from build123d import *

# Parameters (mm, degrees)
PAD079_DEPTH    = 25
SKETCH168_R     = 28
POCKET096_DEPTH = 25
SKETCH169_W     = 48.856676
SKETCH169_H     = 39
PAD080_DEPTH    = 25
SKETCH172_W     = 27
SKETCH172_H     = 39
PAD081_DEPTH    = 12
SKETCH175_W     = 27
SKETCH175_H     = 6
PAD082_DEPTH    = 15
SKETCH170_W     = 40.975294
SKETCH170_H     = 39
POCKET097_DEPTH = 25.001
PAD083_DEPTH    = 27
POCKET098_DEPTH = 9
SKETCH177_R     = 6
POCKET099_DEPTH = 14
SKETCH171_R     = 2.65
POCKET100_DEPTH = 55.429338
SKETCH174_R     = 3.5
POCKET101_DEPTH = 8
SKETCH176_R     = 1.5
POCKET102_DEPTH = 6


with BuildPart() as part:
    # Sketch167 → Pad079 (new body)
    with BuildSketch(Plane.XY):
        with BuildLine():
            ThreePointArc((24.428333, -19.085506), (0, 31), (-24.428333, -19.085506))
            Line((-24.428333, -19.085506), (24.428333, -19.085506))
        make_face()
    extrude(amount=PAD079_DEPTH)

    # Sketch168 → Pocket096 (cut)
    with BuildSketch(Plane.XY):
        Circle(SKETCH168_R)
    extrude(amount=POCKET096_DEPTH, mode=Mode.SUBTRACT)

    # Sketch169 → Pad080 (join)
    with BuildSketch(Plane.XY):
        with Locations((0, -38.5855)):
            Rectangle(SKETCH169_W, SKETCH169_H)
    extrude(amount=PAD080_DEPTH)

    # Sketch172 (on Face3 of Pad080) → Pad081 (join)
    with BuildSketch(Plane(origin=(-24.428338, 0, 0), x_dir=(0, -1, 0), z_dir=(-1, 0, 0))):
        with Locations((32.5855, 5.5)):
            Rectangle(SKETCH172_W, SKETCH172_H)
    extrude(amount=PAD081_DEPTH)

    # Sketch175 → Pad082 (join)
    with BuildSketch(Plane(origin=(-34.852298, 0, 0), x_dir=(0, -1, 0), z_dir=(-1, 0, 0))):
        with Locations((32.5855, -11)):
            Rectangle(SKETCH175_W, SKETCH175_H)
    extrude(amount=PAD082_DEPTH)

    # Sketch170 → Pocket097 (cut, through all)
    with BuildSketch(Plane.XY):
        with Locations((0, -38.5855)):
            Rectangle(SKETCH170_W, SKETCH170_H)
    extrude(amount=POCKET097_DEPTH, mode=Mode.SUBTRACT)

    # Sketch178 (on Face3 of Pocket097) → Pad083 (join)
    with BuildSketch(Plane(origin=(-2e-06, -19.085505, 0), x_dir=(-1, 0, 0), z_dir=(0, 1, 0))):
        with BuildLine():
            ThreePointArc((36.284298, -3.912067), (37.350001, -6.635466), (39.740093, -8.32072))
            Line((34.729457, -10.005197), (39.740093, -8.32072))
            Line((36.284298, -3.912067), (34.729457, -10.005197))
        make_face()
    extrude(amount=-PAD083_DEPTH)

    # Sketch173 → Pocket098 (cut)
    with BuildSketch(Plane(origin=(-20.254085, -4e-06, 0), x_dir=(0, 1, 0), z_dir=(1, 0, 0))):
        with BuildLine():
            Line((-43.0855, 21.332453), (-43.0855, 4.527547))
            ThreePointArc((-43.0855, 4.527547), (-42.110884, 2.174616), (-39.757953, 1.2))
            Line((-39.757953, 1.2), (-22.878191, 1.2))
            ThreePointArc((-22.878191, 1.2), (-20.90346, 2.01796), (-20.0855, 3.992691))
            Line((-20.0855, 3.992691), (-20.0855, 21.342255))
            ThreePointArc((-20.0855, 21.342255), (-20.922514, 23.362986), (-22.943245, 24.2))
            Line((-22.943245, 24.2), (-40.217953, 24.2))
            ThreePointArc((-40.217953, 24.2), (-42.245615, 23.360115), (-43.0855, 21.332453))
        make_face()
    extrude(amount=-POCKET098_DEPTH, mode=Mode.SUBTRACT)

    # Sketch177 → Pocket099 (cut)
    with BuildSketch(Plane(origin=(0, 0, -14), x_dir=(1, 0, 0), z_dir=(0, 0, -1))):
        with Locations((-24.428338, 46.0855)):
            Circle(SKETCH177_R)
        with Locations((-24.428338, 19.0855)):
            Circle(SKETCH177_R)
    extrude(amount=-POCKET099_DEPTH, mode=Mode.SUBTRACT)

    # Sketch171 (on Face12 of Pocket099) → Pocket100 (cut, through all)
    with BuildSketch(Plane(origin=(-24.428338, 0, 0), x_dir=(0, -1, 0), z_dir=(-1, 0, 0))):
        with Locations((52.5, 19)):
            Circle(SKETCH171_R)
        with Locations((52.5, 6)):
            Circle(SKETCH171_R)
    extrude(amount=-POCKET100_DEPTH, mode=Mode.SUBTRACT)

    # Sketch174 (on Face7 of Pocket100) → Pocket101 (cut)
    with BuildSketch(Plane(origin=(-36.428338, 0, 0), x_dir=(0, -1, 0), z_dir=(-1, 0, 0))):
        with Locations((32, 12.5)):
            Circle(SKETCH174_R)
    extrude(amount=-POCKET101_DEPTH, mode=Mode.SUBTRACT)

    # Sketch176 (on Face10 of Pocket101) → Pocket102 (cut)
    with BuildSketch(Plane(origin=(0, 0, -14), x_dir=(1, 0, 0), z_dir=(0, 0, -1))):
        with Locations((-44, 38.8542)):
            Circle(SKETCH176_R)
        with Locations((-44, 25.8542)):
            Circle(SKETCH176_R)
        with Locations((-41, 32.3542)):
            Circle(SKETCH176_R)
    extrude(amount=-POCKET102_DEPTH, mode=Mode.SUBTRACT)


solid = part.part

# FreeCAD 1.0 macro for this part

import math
import FreeCAD as App
import Part
import Sketcher
from FreeCAD import Vector
Q = App.Units.Quantity

doc = App.newDocument("Part")
body = doc.addObject("PartDesign::Body", "Body")

# Sketch on XY plane
sketch1 = doc.addObject("Sketcher::SketchObject", "Sketch")
body.addObject(sketch1)
sketch1.AttachmentSupport = (doc.XY_Plane, [""])
sketch1.MapMode = "FlatFace"
sketch1.addGeometry(Part.ArcOfCircle(Part.Circle(Vector(0, 0, 0), Vector(0, 0, 1), 31), math.radians(-38.000001), math.radians(218.000001)), False)
sketch1.addGeometry(Part.LineSegment(Vector(-24.428333, -19.085506, 0), Vector(24.428333, -19.085506, 0)), False)
sketch1.addConstraint(Sketcher.Constraint("Coincident", 0, 1, 1, 2))
sketch1.addConstraint(Sketcher.Constraint("Coincident", 1, 1, 0, 2))
sketch1.addConstraint(Sketcher.Constraint("Horizontal", 1))
sketch1.addConstraint(Sketcher.Constraint("Coincident", 0, 3, -1, 1))
sketch1.addConstraint(Sketcher.Constraint("Radius", 0, Q("31 mm")))
sketch1.addConstraint(Sketcher.Constraint("DistanceX", 1, 1, 1, 2, Q("48.856666 mm")))
pad1 = doc.addObject("PartDesign::Pad", "Pad")
body.addObject(pad1)
pad1.Profile = sketch1
pad1.Length = 25

# Sketch on XY plane
sketch2 = doc.addObject("Sketcher::SketchObject", "Sketch001")
body.addObject(sketch2)
sketch2.AttachmentSupport = (doc.XY_Plane, [""])
sketch2.MapMode = "FlatFace"
sketch2.addGeometry(Part.Circle(Vector(0, 0, 0), Vector(0, 0, 1), 28), False)
sketch2.addConstraint(Sketcher.Constraint("Coincident", 0, 3, -1, 1))
sketch2.addConstraint(Sketcher.Constraint("Diameter", 0, Q("56 mm")))
pocket1 = doc.addObject("PartDesign::Pocket", "Pocket")
body.addObject(pocket1)
pocket1.Profile = sketch2
pocket1.Length = 25
pocket1.Reversed = True

# Sketch on XY plane
sketch3 = doc.addObject("Sketcher::SketchObject", "Sketch002")
body.addObject(sketch3)
sketch3.AttachmentSupport = (doc.XY_Plane, [""])
sketch3.MapMode = "FlatFace"
sketch3.addGeometry(Part.LineSegment(Vector(-24.428338, -19.0855, 0), Vector(-24.428338, -58.0855, 0)), False)
sketch3.addGeometry(Part.LineSegment(Vector(-24.428338, -58.0855, 0), Vector(24.428338, -58.0855, 0)), False)
sketch3.addGeometry(Part.LineSegment(Vector(24.428338, -58.0855, 0), Vector(24.428338, -19.0855, 0)), False)
sketch3.addGeometry(Part.LineSegment(Vector(24.428338, -19.0855, 0), Vector(-24.428338, -19.0855, 0)), False)
sketch3.addConstraint(Sketcher.Constraint("Coincident", 0, 2, 1, 1))
sketch3.addConstraint(Sketcher.Constraint("Coincident", 1, 2, 2, 1))
sketch3.addConstraint(Sketcher.Constraint("Coincident", 2, 2, 3, 1))
sketch3.addConstraint(Sketcher.Constraint("Coincident", 3, 2, 0, 1))
sketch3.addConstraint(Sketcher.Constraint("Vertical", 0))
sketch3.addConstraint(Sketcher.Constraint("Horizontal", 1))
sketch3.addConstraint(Sketcher.Constraint("Vertical", 2))
sketch3.addConstraint(Sketcher.Constraint("Horizontal", 3))
sketch3.addConstraint(Sketcher.Constraint("DistanceY", 0, 2, 0, 1, Q("39 mm")))
sketch3.addConstraint(Sketcher.Constraint("DistanceY", 0, 2, -1, 1, Q("58.0855 mm")))
sketch3.addConstraint(Sketcher.Constraint("DistanceX", 1, 1, 1, 2, Q("48.856676 mm")))
sketch3.addConstraint(Sketcher.Constraint("DistanceX", 0, 2, -1, 1, Q("24.428338 mm")))
pad2 = doc.addObject("PartDesign::Pad", "Pad001")
body.addObject(pad2)
pad2.Profile = sketch3
pad2.Length = 25

# Sketch on YZ plane
sketch4 = doc.addObject("Sketcher::SketchObject", "Sketch003")
body.addObject(sketch4)
sketch4.AttachmentSupport = (doc.YZ_Plane, [""])
sketch4.MapMode = "FlatFace"
sketch4.AttachmentOffset = App.Placement(Vector(0, 0, -24.428338), App.Rotation())
sketch4.addGeometry(Part.LineSegment(Vector(-19.0855, 25, 0), Vector(-19.0855, -14, 0)), False)
sketch4.addGeometry(Part.LineSegment(Vector(-19.0855, -14, 0), Vector(-46.0855, -14, 0)), False)
sketch4.addGeometry(Part.LineSegment(Vector(-46.0855, -14, 0), Vector(-46.0855, 25, 0)), False)
sketch4.addGeometry(Part.LineSegment(Vector(-46.0855, 25, 0), Vector(-19.0855, 25, 0)), False)
sketch4.addConstraint(Sketcher.Constraint("Coincident", 0, 2, 1, 1))
sketch4.addConstraint(Sketcher.Constraint("Coincident", 1, 2, 2, 1))
sketch4.addConstraint(Sketcher.Constraint("Coincident", 2, 2, 3, 1))
sketch4.addConstraint(Sketcher.Constraint("Coincident", 3, 2, 0, 1))
sketch4.addConstraint(Sketcher.Constraint("Vertical", 0))
sketch4.addConstraint(Sketcher.Constraint("Horizontal", 1))
sketch4.addConstraint(Sketcher.Constraint("Vertical", 2))
sketch4.addConstraint(Sketcher.Constraint("Horizontal", 3))
sketch4.addConstraint(Sketcher.Constraint("DistanceX", 1, 2, 1, 1, Q("27 mm")))
sketch4.addConstraint(Sketcher.Constraint("DistanceY", 0, 2, 0, 1, Q("39 mm")))
sketch4.addConstraint(Sketcher.Constraint("DistanceY", 0, 2, -1, 1, Q("14 mm")))
sketch4.addConstraint(Sketcher.Constraint("DistanceX", 0, 2, -1, 1, Q("19.0855 mm")))
pad3 = doc.addObject("PartDesign::Pad", "Pad002")
body.addObject(pad3)
pad3.Profile = sketch4
pad3.Length = 12
pad3.Reversed = True

# Sketch on YZ plane
sketch5 = doc.addObject("Sketcher::SketchObject", "Sketch004")
body.addObject(sketch5)
sketch5.AttachmentSupport = (doc.YZ_Plane, [""])
sketch5.MapMode = "FlatFace"
sketch5.AttachmentOffset = App.Placement(Vector(0, 0, -34.852298), App.Rotation())
sketch5.addGeometry(Part.LineSegment(Vector(-19.0855, -8, 0), Vector(-19.0855, -14, 0)), False)
sketch5.addGeometry(Part.LineSegment(Vector(-19.0855, -14, 0), Vector(-46.0855, -14, 0)), False)
sketch5.addGeometry(Part.LineSegment(Vector(-46.0855, -14, 0), Vector(-46.0855, -8, 0)), False)
sketch5.addGeometry(Part.LineSegment(Vector(-46.0855, -8, 0), Vector(-19.0855, -8, 0)), False)
sketch5.addConstraint(Sketcher.Constraint("Coincident", 0, 2, 1, 1))
sketch5.addConstraint(Sketcher.Constraint("Coincident", 1, 2, 2, 1))
sketch5.addConstraint(Sketcher.Constraint("Coincident", 2, 2, 3, 1))
sketch5.addConstraint(Sketcher.Constraint("Coincident", 3, 2, 0, 1))
sketch5.addConstraint(Sketcher.Constraint("Vertical", 0))
sketch5.addConstraint(Sketcher.Constraint("Horizontal", 1))
sketch5.addConstraint(Sketcher.Constraint("Vertical", 2))
sketch5.addConstraint(Sketcher.Constraint("Horizontal", 3))
sketch5.addConstraint(Sketcher.Constraint("DistanceX", 1, 2, 1, 1, Q("27 mm")))
sketch5.addConstraint(Sketcher.Constraint("DistanceY", 0, 2, 0, 1, Q("6 mm")))
sketch5.addConstraint(Sketcher.Constraint("DistanceY", 0, 2, -1, 1, Q("14 mm")))
sketch5.addConstraint(Sketcher.Constraint("DistanceX", 0, 2, -1, 1, Q("19.0855 mm")))
pad4 = doc.addObject("PartDesign::Pad", "Pad003")
body.addObject(pad4)
pad4.Profile = sketch5
pad4.Length = 15
pad4.Reversed = True

# Sketch on XY plane
sketch6 = doc.addObject("Sketcher::SketchObject", "Sketch005")
body.addObject(sketch6)
sketch6.AttachmentSupport = (doc.XY_Plane, [""])
sketch6.MapMode = "FlatFace"
sketch6.addGeometry(Part.LineSegment(Vector(-20.487647, -19.0855, 0), Vector(-20.487647, -58.0855, 0)), False)
sketch6.addGeometry(Part.LineSegment(Vector(-20.487647, -58.0855, 0), Vector(20.487647, -58.0855, 0)), False)
sketch6.addGeometry(Part.LineSegment(Vector(20.487647, -58.0855, 0), Vector(20.487647, -19.0855, 0)), False)
sketch6.addGeometry(Part.LineSegment(Vector(20.487647, -19.0855, 0), Vector(-20.487647, -19.0855, 0)), False)
sketch6.addConstraint(Sketcher.Constraint("Coincident", 0, 2, 1, 1))
sketch6.addConstraint(Sketcher.Constraint("Coincident", 1, 2, 2, 1))
sketch6.addConstraint(Sketcher.Constraint("Coincident", 2, 2, 3, 1))
sketch6.addConstraint(Sketcher.Constraint("Coincident", 3, 2, 0, 1))
sketch6.addConstraint(Sketcher.Constraint("Vertical", 0))
sketch6.addConstraint(Sketcher.Constraint("Horizontal", 1))
sketch6.addConstraint(Sketcher.Constraint("Vertical", 2))
sketch6.addConstraint(Sketcher.Constraint("Horizontal", 3))
sketch6.addConstraint(Sketcher.Constraint("DistanceY", 0, 2, 0, 1, Q("39 mm")))
sketch6.addConstraint(Sketcher.Constraint("DistanceY", 0, 2, -1, 1, Q("58.0855 mm")))
sketch6.addConstraint(Sketcher.Constraint("DistanceX", 1, 1, 1, 2, Q("40.975294 mm")))
sketch6.addConstraint(Sketcher.Constraint("DistanceX", 0, 2, -1, 1, Q("20.487647 mm")))
pocket2 = doc.addObject("PartDesign::Pocket", "Pocket001")
body.addObject(pocket2)
pocket2.Profile = sketch6
pocket2.Type = "ThroughAll"
pocket2.Reversed = True

# Sketch on XZ plane
sketch7 = doc.addObject("Sketcher::SketchObject", "Sketch006")
body.addObject(sketch7)
sketch7.AttachmentSupport = (doc.XZ_Plane, [""])
sketch7.MapMode = "FlatFace"
sketch7.AttachmentOffset = App.Placement(Vector(0, 0, 19.085505), App.Rotation())
sketch7.addGeometry(Part.ArcOfCircle(Part.Circle(Vector(-41.350002, -3.5, 0), Vector(0, 0, 1), 5.082434), math.radians(-71.532959), math.radians(-4.650452)), False)
sketch7.addGeometry(Part.LineSegment(Vector(-36.2843, -3.912067, 0), Vector(-34.729459, -10.005197, 0)), False)
sketch7.addGeometry(Part.LineSegment(Vector(-34.729459, -10.005197, 0), Vector(-39.740095, -8.32072, 0)), False)
sketch7.addConstraint(Sketcher.Constraint("Coincident", 0, 2, 1, 1))
sketch7.addConstraint(Sketcher.Constraint("Coincident", 1, 2, 2, 1))
sketch7.addConstraint(Sketcher.Constraint("Coincident", 2, 2, 0, 1))
sketch7.addConstraint(Sketcher.Constraint("DistanceY", 0, 3, -1, 1, Q("3.5 mm")))
sketch7.addConstraint(Sketcher.Constraint("Radius", 0, Q("5.082434 mm")))
sketch7.addConstraint(Sketcher.Constraint("DistanceX", 0, 2, -1, 1, Q("36.2843 mm")))
sketch7.addConstraint(Sketcher.Constraint("DistanceX", 1, 2, -1, 1, Q("34.729459 mm")))
sketch7.addConstraint(Sketcher.Constraint("DistanceY", 2, 2, -1, 1, Q("8.32072 mm")))
sketch7.addConstraint(Sketcher.Constraint("DistanceY", 1, 2, 0, 2, Q("6.09313 mm")))
sketch7.addConstraint(Sketcher.Constraint("Distance", 2, Q("5.286202 mm")))
pad5 = doc.addObject("PartDesign::Pad", "Pad004")
body.addObject(pad5)
pad5.Profile = sketch7
pad5.Length = 27

# Sketch on YZ plane
sketch8 = doc.addObject("Sketcher::SketchObject", "Sketch007")
body.addObject(sketch8)
sketch8.AttachmentSupport = (doc.YZ_Plane, [""])
sketch8.MapMode = "FlatFace"
sketch8.AttachmentOffset = App.Placement(Vector(0, 0, -20.254085), App.Rotation())
sketch8.addGeometry(Part.LineSegment(Vector(-43.085504, 21.332453, 0), Vector(-43.085504, 4.527547, 0)), False)
sketch8.addGeometry(Part.ArcOfCircle(Part.Circle(Vector(-39.757957, 4.527547, 0), Vector(0, 0, 1), 3.327547), math.radians(-179.999997), math.radians(-90.000003)), False)
sketch8.addGeometry(Part.LineSegment(Vector(-39.757957, 1.2, 0), Vector(-22.878195, 1.2, 0)), False)
sketch8.addGeometry(Part.ArcOfCircle(Part.Circle(Vector(-22.878194, 3.99269, 0), Vector(0, 0, 1), 2.79269), math.radians(-90.000018), math.radians(0.000018)), False)
sketch8.addGeometry(Part.LineSegment(Vector(-20.085504, 3.992691, 0), Vector(-20.085504, 21.342255, 0)), False)
sketch8.addGeometry(Part.ArcOfCircle(Part.Circle(Vector(-22.943249, 21.342255, 0), Vector(0, 0, 1), 2.857745), math.radians(-0.000009), math.radians(90.000009)), False)
sketch8.addGeometry(Part.LineSegment(Vector(-22.943249, 24.2, 0), Vector(-40.217957, 24.2, 0)), False)
sketch8.addGeometry(Part.ArcOfCircle(Part.Circle(Vector(-40.217957, 21.332453, 0), Vector(0, 0, 1), 2.867547), math.radians(89.999995), math.radians(180.000005)), False)
sketch8.addConstraint(Sketcher.Constraint("Tangent", 0, 2, 1, 1))
sketch8.addConstraint(Sketcher.Constraint("Tangent", 1, 2, 2, 1))
sketch8.addConstraint(Sketcher.Constraint("Tangent", 2, 2, 3, 1))
sketch8.addConstraint(Sketcher.Constraint("Tangent", 3, 2, 4, 1))
sketch8.addConstraint(Sketcher.Constraint("Tangent", 4, 2, 5, 1))
sketch8.addConstraint(Sketcher.Constraint("Tangent", 5, 2, 6, 1))
sketch8.addConstraint(Sketcher.Constraint("Tangent", 6, 2, 7, 1))
sketch8.addConstraint(Sketcher.Constraint("Tangent", 7, 2, 0, 1))
sketch8.addConstraint(Sketcher.Constraint("Vertical", 0))
sketch8.addConstraint(Sketcher.Constraint("Horizontal", 2))
sketch8.addConstraint(Sketcher.Constraint("Vertical", 4))
sketch8.addConstraint(Sketcher.Constraint("Horizontal", 6))
sketch8.addConstraint(Sketcher.Constraint("DistanceY", -1, 1, 1, 2, Q("1.2 mm")))
sketch8.addConstraint(Sketcher.Constraint("DistanceY", -1, 1, 5, 2, Q("24.2 mm")))
sketch8.addConstraint(Sketcher.Constraint("Radius", 3, Q("2.79269 mm")))
sketch8.addConstraint(Sketcher.Constraint("DistanceX", 7, 3, 1, 3, Q("0.46 mm")))
sketch8.addConstraint(Sketcher.Constraint("Radius", 1, Q("3.327547 mm")))
sketch8.addConstraint(Sketcher.Constraint("Radius", 5, Q("2.857745 mm")))
sketch8.addConstraint(Sketcher.Constraint("DistanceX", 2, 1, 2, 2, Q("16.879762 mm")))
sketch8.addConstraint(Sketcher.Constraint("DistanceX", 5, 3, -1, 1, Q("22.943249 mm")))
pocket3 = doc.addObject("PartDesign::Pocket", "Pocket002")
body.addObject(pocket3)
pocket3.Profile = sketch8
pocket3.Length = 9

# Sketch on XY plane
sketch9 = doc.addObject("Sketcher::SketchObject", "Sketch008")
body.addObject(sketch9)
sketch9.AttachmentSupport = (doc.XY_Plane, [""])
sketch9.MapMode = "FlatFace"
sketch9.AttachmentOffset = App.Placement(Vector(0, 0, -14), App.Rotation())
sketch9.addGeometry(Part.Circle(Vector(-24.428338, -46.0855, 0), Vector(0, 0, 1), 6), False)
sketch9.addGeometry(Part.Circle(Vector(-24.428338, -19.0855, 0), Vector(0, 0, 1), 6), False)
sketch9.addConstraint(Sketcher.Constraint("Equal", 0, 1))
sketch9.addConstraint(Sketcher.Constraint("Vertical", 0, 3, 1, 3))
sketch9.addConstraint(Sketcher.Constraint("Diameter", 0, Q("12 mm")))
sketch9.addConstraint(Sketcher.Constraint("DistanceY", 0, 3, 1, 3, Q("27 mm")))
sketch9.addConstraint(Sketcher.Constraint("DistanceY", 0, 3, -1, 1, Q("46.0855 mm")))
sketch9.addConstraint(Sketcher.Constraint("DistanceX", 0, 3, -1, 1, Q("24.428338 mm")))
pocket4 = doc.addObject("PartDesign::Pocket", "Pocket003")
body.addObject(pocket4)
pocket4.Profile = sketch9
pocket4.Length = 14
pocket4.Reversed = True

# Sketch on YZ plane
sketch10 = doc.addObject("Sketcher::SketchObject", "Sketch009")
body.addObject(sketch10)
sketch10.AttachmentSupport = (doc.YZ_Plane, [""])
sketch10.MapMode = "FlatFace"
sketch10.AttachmentOffset = App.Placement(Vector(0, 0, -24.428338), App.Rotation())
sketch10.addGeometry(Part.Circle(Vector(-52.5, 19, 0), Vector(0, 0, 1), 2.65), False)
sketch10.addGeometry(Part.Circle(Vector(-52.5, 6, 0), Vector(0, 0, 1), 2.65), False)
sketch10.addConstraint(Sketcher.Constraint("Equal", 0, 1))
sketch10.addConstraint(Sketcher.Constraint("Vertical", 0, 3, 1, 3))
sketch10.addConstraint(Sketcher.Constraint("Diameter", 0, Q("5.3 mm")))
sketch10.addConstraint(Sketcher.Constraint("DistanceY", -1, 1, 0, 3, Q("19 mm")))
sketch10.addConstraint(Sketcher.Constraint("DistanceY", -1, 1, 1, 3, Q("6 mm")))
sketch10.addConstraint(Sketcher.Constraint("DistanceX", 0, 3, -1, 1, Q("52.5 mm")))
pocket5 = doc.addObject("PartDesign::Pocket", "Pocket004")
body.addObject(pocket5)
pocket5.Profile = sketch10
pocket5.Type = "ThroughAll"
pocket5.Reversed = True

# Sketch on YZ plane
sketch11 = doc.addObject("Sketcher::SketchObject", "Sketch010")
body.addObject(sketch11)
sketch11.AttachmentSupport = (doc.YZ_Plane, [""])
sketch11.MapMode = "FlatFace"
sketch11.AttachmentOffset = App.Placement(Vector(0, 0, -36.428338), App.Rotation())
sketch11.addGeometry(Part.Circle(Vector(-32, 12.5, 0), Vector(0, 0, 1), 3.5), False)
sketch11.addConstraint(Sketcher.Constraint("Diameter", 0, Q("7 mm")))
sketch11.addConstraint(Sketcher.Constraint("DistanceX", 0, 3, -1, 1, Q("32 mm")))
sketch11.addConstraint(Sketcher.Constraint("DistanceY", -1, 1, 0, 3, Q("12.5 mm")))
pocket6 = doc.addObject("PartDesign::Pocket", "Pocket005")
body.addObject(pocket6)
pocket6.Profile = sketch11
pocket6.Length = 8
pocket6.Reversed = True

# Sketch on XY plane
sketch12 = doc.addObject("Sketcher::SketchObject", "Sketch011")
body.addObject(sketch12)
sketch12.AttachmentSupport = (doc.XY_Plane, [""])
sketch12.MapMode = "FlatFace"
sketch12.AttachmentOffset = App.Placement(Vector(0, 0, -14), App.Rotation())
sketch12.addGeometry(Part.Circle(Vector(-44, -38.8542, 0), Vector(0, 0, 1), 1.5), False)
sketch12.addGeometry(Part.Circle(Vector(-44, -25.8542, 0), Vector(0, 0, 1), 1.5), False)
sketch12.addGeometry(Part.Circle(Vector(-41, -32.3542, 0), Vector(0, 0, 1), 1.5), False)
sketch12.addConstraint(Sketcher.Constraint("Equal", 0, 1))
sketch12.addConstraint(Sketcher.Constraint("Equal", 1, 2))
sketch12.addConstraint(Sketcher.Constraint("Vertical", 0, 3, 1, 3))
sketch12.addConstraint(Sketcher.Constraint("Diameter", 0, Q("3 mm")))
sketch12.addConstraint(Sketcher.Constraint("DistanceX", 0, 3, -1, 1, Q("44 mm")))
sketch12.addConstraint(Sketcher.Constraint("DistanceX", 2, 3, -1, 1, Q("41 mm")))
sketch12.addConstraint(Sketcher.Constraint("DistanceY", 0, 3, 1, 3, Q("13 mm")))
sketch12.addConstraint(Sketcher.Constraint("DistanceY", 0, 3, 2, 3, Q("6.5 mm")))
sketch12.addConstraint(Sketcher.Constraint("DistanceY", 0, 3, -1, 1, Q("38.8542 mm")))
pocket7 = doc.addObject("PartDesign::Pocket", "Pocket006")
body.addObject(pocket7)
pocket7.Profile = sketch12
pocket7.Length = 6
pocket7.Reversed = True

doc.recompute()
